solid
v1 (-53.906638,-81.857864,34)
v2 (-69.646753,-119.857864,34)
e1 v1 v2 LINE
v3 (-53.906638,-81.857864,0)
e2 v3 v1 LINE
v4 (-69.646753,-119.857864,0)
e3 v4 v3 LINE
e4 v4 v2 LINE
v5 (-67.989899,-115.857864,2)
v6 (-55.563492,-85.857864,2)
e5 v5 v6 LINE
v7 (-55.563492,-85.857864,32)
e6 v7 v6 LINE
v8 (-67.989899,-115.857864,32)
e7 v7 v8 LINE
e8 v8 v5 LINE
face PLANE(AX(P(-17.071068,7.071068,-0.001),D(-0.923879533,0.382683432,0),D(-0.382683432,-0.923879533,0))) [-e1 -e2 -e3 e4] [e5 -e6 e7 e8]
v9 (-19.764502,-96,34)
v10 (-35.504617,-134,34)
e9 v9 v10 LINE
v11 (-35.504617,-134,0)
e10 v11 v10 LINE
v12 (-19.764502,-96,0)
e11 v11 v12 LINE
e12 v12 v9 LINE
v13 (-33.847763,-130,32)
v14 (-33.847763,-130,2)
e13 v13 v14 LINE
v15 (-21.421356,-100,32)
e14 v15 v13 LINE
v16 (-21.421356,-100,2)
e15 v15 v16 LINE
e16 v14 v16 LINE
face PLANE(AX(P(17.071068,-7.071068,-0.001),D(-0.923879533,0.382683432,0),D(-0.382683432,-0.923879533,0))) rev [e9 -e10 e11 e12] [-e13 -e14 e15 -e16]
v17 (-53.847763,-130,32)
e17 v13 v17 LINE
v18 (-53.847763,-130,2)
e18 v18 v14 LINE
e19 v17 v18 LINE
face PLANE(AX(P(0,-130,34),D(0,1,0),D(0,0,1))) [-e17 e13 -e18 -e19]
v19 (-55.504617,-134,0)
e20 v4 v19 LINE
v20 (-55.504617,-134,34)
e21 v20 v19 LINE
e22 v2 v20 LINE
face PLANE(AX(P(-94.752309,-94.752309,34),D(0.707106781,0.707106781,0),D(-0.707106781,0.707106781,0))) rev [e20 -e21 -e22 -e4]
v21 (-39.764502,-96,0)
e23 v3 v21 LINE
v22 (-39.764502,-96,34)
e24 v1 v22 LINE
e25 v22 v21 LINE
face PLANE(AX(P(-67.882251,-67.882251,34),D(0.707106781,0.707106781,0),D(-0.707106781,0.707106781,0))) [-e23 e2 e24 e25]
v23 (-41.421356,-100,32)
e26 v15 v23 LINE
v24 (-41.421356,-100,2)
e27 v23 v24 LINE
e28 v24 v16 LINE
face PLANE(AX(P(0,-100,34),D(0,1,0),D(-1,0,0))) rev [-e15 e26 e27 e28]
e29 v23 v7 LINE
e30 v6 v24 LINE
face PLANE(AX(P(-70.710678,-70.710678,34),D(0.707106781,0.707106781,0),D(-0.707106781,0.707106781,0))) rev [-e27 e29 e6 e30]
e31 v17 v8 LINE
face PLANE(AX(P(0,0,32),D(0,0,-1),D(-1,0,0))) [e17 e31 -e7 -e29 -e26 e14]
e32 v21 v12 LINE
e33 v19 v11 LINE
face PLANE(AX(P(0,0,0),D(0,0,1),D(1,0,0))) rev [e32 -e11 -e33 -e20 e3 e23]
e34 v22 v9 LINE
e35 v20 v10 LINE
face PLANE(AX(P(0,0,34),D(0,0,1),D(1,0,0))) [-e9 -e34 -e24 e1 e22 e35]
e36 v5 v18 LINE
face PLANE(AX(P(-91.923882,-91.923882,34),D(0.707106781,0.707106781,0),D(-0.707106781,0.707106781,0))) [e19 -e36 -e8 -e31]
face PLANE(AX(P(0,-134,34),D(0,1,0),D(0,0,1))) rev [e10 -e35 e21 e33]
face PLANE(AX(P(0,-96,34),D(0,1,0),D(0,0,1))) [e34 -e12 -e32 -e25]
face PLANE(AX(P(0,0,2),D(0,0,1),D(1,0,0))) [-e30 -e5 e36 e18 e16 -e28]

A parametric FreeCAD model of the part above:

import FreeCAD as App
import Part
import Sketcher
from FreeCAD import Vector
Q = App.Units.Quantity

doc = App.newDocument("Part")
body = doc.addObject("PartDesign::Body", "Body")

# Sketch on XY plane
sketch1 = body.newObject("Sketcher::SketchObject", "Sketch")
sketch1.AttachmentSupport = (doc.getObject("XY_Plane"), [""])
sketch1.MapMode = "FlatFace"
sketch1.addGeometry([
    Part.LineSegment(Vector(55.504617, -134, 0), Vector(134, -55.504617, 0)),  # 0
    Part.LineSegment(Vector(134, -55.504617, 0), Vector(134, 55.504617, 0)),  # 1
    Part.LineSegment(Vector(134, 55.504617, 0), Vector(55.504617, 134, 0)),  # 2
    Part.LineSegment(Vector(55.504617, 134, 0), Vector(-55.504617, 134, 0)),  # 3
    Part.LineSegment(Vector(-55.504617, 134, 0), Vector(-134, 55.504617, 0)),  # 4
    Part.LineSegment(Vector(-134, 55.504617, 0), Vector(-134, -55.504617, 0)),  # 5
    Part.LineSegment(Vector(-134, -55.504617, 0), Vector(-55.504617, -134, 0)),  # 6
    Part.LineSegment(Vector(-55.504617, -134, 0), Vector(55.504617, -134, 0)),  # 7
    Part.LineSegment(Vector(130, 53.847763, 0), Vector(130, -53.847763, 0)),  # 8
    Part.LineSegment(Vector(130, -53.847763, 0), Vector(53.847763, -130, 0)),  # 9
    Part.LineSegment(Vector(53.847763, -130, 0), Vector(-53.847763, -130, 0)),  # 10
    Part.LineSegment(Vector(-53.847763, -130, 0), Vector(-130, -53.847763, 0)),  # 11
    Part.LineSegment(Vector(-130, -53.847763, 0), Vector(-130, 53.847763, 0)),  # 12
    Part.LineSegment(Vector(-130, 53.847763, 0), Vector(-53.847763, 130, 0)),  # 13
    Part.LineSegment(Vector(-53.847763, 130, 0), Vector(53.847763, 130, 0)),  # 14
    Part.LineSegment(Vector(53.847763, 130, 0), Vector(130, 53.847763, 0)),  # 15
], False)
sketch1.addConstraint([
    Sketcher.Constraint("Coincident", 0, 2, 1, 1),
    Sketcher.Constraint("Coincident", 1, 2, 2, 1),
    Sketcher.Constraint("Coincident", 2, 2, 3, 1),
    Sketcher.Constraint("Coincident", 3, 2, 4, 1),
    Sketcher.Constraint("Coincident", 4, 2, 5, 1),
    Sketcher.Constraint("Coincident", 5, 2, 6, 1),
    Sketcher.Constraint("Coincident", 6, 2, 7, 1),
    Sketcher.Constraint("Coincident", 7, 2, 0, 1),
    Sketcher.Constraint("Coincident", 8, 2, 9, 1),
    Sketcher.Constraint("Coincident", 9, 2, 10, 1),
    Sketcher.Constraint("Coincident", 10, 2, 11, 1),
    Sketcher.Constraint("Coincident", 11, 2, 12, 1),
    Sketcher.Constraint("Coincident", 12, 2, 13, 1),
    Sketcher.Constraint("Coincident", 13, 2, 14, 1),
    Sketcher.Constraint("Coincident", 14, 2, 15, 1),
    Sketcher.Constraint("Coincident", 15, 2, 8, 1),
    Sketcher.Constraint("Vertical", 1),
    Sketcher.Constraint("Horizontal", 3),
    Sketcher.Constraint("Vertical", 5),
    Sketcher.Constraint("Horizontal", 7),
    Sketcher.Constraint("Vertical", 8),
    Sketcher.Constraint("Horizontal", 10),
    Sketcher.Constraint("Vertical", 12),
    Sketcher.Constraint("Horizontal", 14),
    Sketcher.Constraint("Symmetric", 0, 2, 4, 2, -1, 1),
    Sketcher.Constraint("Symmetric", 2, 2, 6, 2, -1, 1),
    Sketcher.Constraint("Symmetric", 8, 2, 12, 2, -1, 1),
    Sketcher.Constraint("Symmetric", 9, 2, 13, 2, -1, 1),
    Sketcher.Constraint("Perpendicular", 0, 2),
    Sketcher.Constraint("Perpendicular", 2, 4),
    Sketcher.Constraint("Perpendicular", 4, 6),
    Sketcher.Constraint("Perpendicular", 6, 9),
    Sketcher.Constraint("Perpendicular", 9, 11),
    Sketcher.Constraint("Perpendicular", 13, 15),
    Sketcher.Constraint("Horizontal", 1, 2, 4, 2),
    Sketcher.Constraint("Horizontal", 8, 2, 11, 2),
    Sketcher.Constraint("Horizontal", 12, 2, 15, 2),
    Sketcher.Constraint("Vertical", 3, 2, 6, 2),
    Sketcher.Constraint("Equal", 7, 1),
    Sketcher.Constraint("Equal", 14, 8),
    Sketcher.Constraint("DistanceX", -1, 1, 0, 2, Q("134 mm")),
    Sketcher.Constraint("DistanceX", -1, 1, 8, 2, Q("130 mm")),
    Sketcher.Constraint("DistanceX", 3, 2, 3, 1, Q("111.009235 mm")),
    Sketcher.Constraint("DistanceX", 10, 2, 10, 1, Q("107.695526 mm")),
])
pad1 = body.newObject("PartDesign::Pad", "Pad")
pad1.Profile = sketch1
pad1.Length = 34
body2 = doc.addObject("PartDesign::Body", "Body001")

# Sketch on XY plane
sketch2 = body2.newObject("Sketcher::SketchObject", "Sketch001")
sketch2.AttachmentSupport = (doc.getObject("XY_Plane001"), [""])
sketch2.MapMode = "FlatFace"
sketch2.addGeometry([
    Part.LineSegment(Vector(41.421356, -100, 0), Vector(100, -41.421356, 0)),  # 0
    Part.LineSegment(Vector(100, -41.421356, 0), Vector(100, 41.421356, 0)),  # 1
    Part.LineSegment(Vector(100, 41.421356, 0), Vector(41.421356, 100, 0)),  # 2
    Part.LineSegment(Vector(41.421356, 100, 0), Vector(-41.421356, 100, 0)),  # 3
    Part.LineSegment(Vector(-41.421356, 100, 0), Vector(-100, 41.421356, 0)),  # 4
    Part.LineSegment(Vector(-100, 41.421356, 0), Vector(-100, -41.421356, 0)),  # 5
    Part.LineSegment(Vector(-100, -41.421356, 0), Vector(-41.421356, -100, 0)),  # 6
    Part.LineSegment(Vector(-41.421356, -100, 0), Vector(41.421356, -100, 0)),  # 7
    Part.LineSegment(Vector(96, 39.764502, 0), Vector(96, -39.764502, 0)),  # 8
    Part.LineSegment(Vector(96, -39.764502, 0), Vector(39.764502, -96, 0)),  # 9
    Part.LineSegment(Vector(39.764502, -96, 0), Vector(-39.764502, -96, 0)),  # 10
    Part.LineSegment(Vector(-39.764502, -96, 0), Vector(-96, -39.764502, 0)),  # 11
    Part.LineSegment(Vector(-96, -39.764502, 0), Vector(-96, 39.764502, 0)),  # 12
    Part.LineSegment(Vector(-96, 39.764502, 0), Vector(-39.764502, 96, 0)),  # 13
    Part.LineSegment(Vector(-39.764502, 96, 0), Vector(39.764502, 96, 0)),  # 14
    Part.LineSegment(Vector(39.764502, 96, 0), Vector(96, 39.764502, 0)),  # 15
], False)
sketch2.addConstraint([
    Sketcher.Constraint("Coincident", 0, 2, 1, 1),
    Sketcher.Constraint("Coincident", 1, 2, 2, 1),
    Sketcher.Constraint("Coincident", 2, 2, 3, 1),
    Sketcher.Constraint("Coincident", 3, 2, 4, 1),
    Sketcher.Constraint("Coincident", 4, 2, 5, 1),
    Sketcher.Constraint("Coincident", 5, 2, 6, 1),
    Sketcher.Constraint("Coincident", 6, 2, 7, 1),
    Sketcher.Constraint("Coincident", 7, 2, 0, 1),
    Sketcher.Constraint("Coincident", 8, 2, 9, 1),
    Sketcher.Constraint("Coincident", 9, 2, 10, 1),
    Sketcher.Constraint("Coincident", 10, 2, 11, 1),
    Sketcher.Constraint("Coincident", 11, 2, 12, 1),
    Sketcher.Constraint("Coincident", 12, 2, 13, 1),
    Sketcher.Constraint("Coincident", 13, 2, 14, 1),
    Sketcher.Constraint("Coincident", 14, 2, 15, 1),
    Sketcher.Constraint("Coincident", 15, 2, 8, 1),
    Sketcher.Constraint("Vertical", 1),
    Sketcher.Constraint("Horizontal", 3),
    Sketcher.Constraint("Vertical", 5),
    Sketcher.Constraint("Horizontal", 7),
    Sketcher.Constraint("Vertical", 8),
    Sketcher.Constraint("Horizontal", 10),
    Sketcher.Constraint("Vertical", 12),
    Sketcher.Constraint("Horizontal", 14),
    Sketcher.Constraint("Symmetric", 0, 2, 4, 2, -1, 1),
    Sketcher.Constraint("Symmetric", 2, 2, 6, 2, -1, 1),
    Sketcher.Constraint("Symmetric", 8, 2, 12, 2, -1, 1),
    Sketcher.Constraint("Symmetric", 9, 2, 13, 2, -1, 1),
    Sketcher.Constraint("Perpendicular", 0, 2),
    Sketcher.Constraint("Perpendicular", 2, 4),
    Sketcher.Constraint("Perpendicular", 4, 6),
    Sketcher.Constraint("Perpendicular", 6, 9),
    Sketcher.Constraint("Perpendicular", 9, 11),
    Sketcher.Constraint("Perpendicular", 13, 15),
    Sketcher.Constraint("Horizontal", 1, 2, 4, 2),
    Sketcher.Constraint("Horizontal", 8, 2, 11, 2),
    Sketcher.Constraint("Horizontal", 12, 2, 15, 2),
    Sketcher.Constraint("Vertical", 3, 2, 6, 2),
    Sketcher.Constraint("Equal", 7, 1),
    Sketcher.Constraint("Equal", 14, 8),
    Sketcher.Constraint("DistanceX", -1, 1, 0, 2, Q("100 mm")),
    Sketcher.Constraint("DistanceX", -1, 1, 8, 2, Q("96 mm")),
    Sketcher.Constraint("DistanceY", 8, 2, -1, 1, Q("39.764502 mm")),
    Sketcher.Constraint("DistanceX", 3, 2, 3, 1, Q("82.842712 mm")),
])
pad2 = body2.newObject("PartDesign::Pad", "Pad001")
pad2.Profile = sketch2
pad2.Length = 34
body.AllowCompound = True
doc.recompute()

boolean = body.newObject("PartDesign::Boolean", "Boolean")
boolean.Type = "Fuse"
boolean.addObjects([body2])

# Sketch on XY plane
sketch3 = body.newObject("Sketcher::SketchObject", "Sketch002")
sketch3.AttachmentSupport = (doc.getObject("XY_Plane"), [""])
sketch3.MapMode = "FlatFace"
sketch3.addGeometry([
    Part.LineSegment(Vector(53.847763, -130, 0), Vector(130, -53.847763, 0)),  # 0
    Part.LineSegment(Vector(130, -53.847763, 0), Vector(130, 53.847763, 0)),  # 1
    Part.LineSegment(Vector(130, 53.847763, 0), Vector(53.847763, 130, 0)),  # 2
    Part.LineSegment(Vector(53.847763, 130, 0), Vector(-53.847763, 130, 0)),  # 3
    Part.LineSegment(Vector(-53.847763, 130, 0), Vector(-130, 53.847763, 0)),  # 4
    Part.LineSegment(Vector(-130, 53.847763, 0), Vector(-130, -53.847763, 0)),  # 5
    Part.LineSegment(Vector(-130, -53.847763, 0), Vector(-53.847763, -130, 0)),  # 6
    Part.LineSegment(Vector(-53.847763, -130, 0), Vector(53.847763, -130, 0)),  # 7
    Part.LineSegment(Vector(100, 41.421356, 0), Vector(100, -41.421356, 0)),  # 8
    Part.LineSegment(Vector(100, -41.421356, 0), Vector(41.421356, -100, 0)),  # 9
    Part.LineSegment(Vector(41.421356, -100, 0), Vector(-41.421356, -100, 0)),  # 10
    Part.LineSegment(Vector(-41.421356, -100, 0), Vector(-100, -41.421356, 0)),  # 11
    Part.LineSegment(Vector(-100, -41.421356, 0), Vector(-100, 41.421356, 0)),  # 12
    Part.LineSegment(Vector(-100, 41.421356, 0), Vector(-41.421356, 100, 0)),  # 13
    Part.LineSegment(Vector(-41.421356, 100, 0), Vector(41.421356, 100, 0)),  # 14
    Part.LineSegment(Vector(41.421356, 100, 0), Vector(100, 41.421356, 0)),  # 15
], False)
sketch3.addConstraint([
    Sketcher.Constraint("Coincident", 0, 2, 1, 1),
    Sketcher.Constraint("Coincident", 1, 2, 2, 1),
    Sketcher.Constraint("Coincident", 2, 2, 3, 1),
    Sketcher.Constraint("Coincident", 3, 2, 4, 1),
    Sketcher.Constraint("Coincident", 4, 2, 5, 1),
    Sketcher.Constraint("Coincident", 5, 2, 6, 1),
    Sketcher.Constraint("Coincident", 6, 2, 7, 1),
    Sketcher.Constraint("Coincident", 7, 2, 0, 1),
    Sketcher.Constraint("Coincident", 8, 2, 9, 1),
    Sketcher.Constraint("Coincident", 9, 2, 10, 1),
    Sketcher.Constraint("Coincident", 10, 2, 11, 1),
    Sketcher.Constraint("Coincident", 11, 2, 12, 1),
    Sketcher.Constraint("Coincident", 12, 2, 13, 1),
    Sketcher.Constraint("Coincident", 13, 2, 14, 1),
    Sketcher.Constraint("Coincident", 14, 2, 15, 1),
    Sketcher.Constraint("Coincident", 15, 2, 8, 1),
    Sketcher.Constraint("Vertical", 1),
    Sketcher.Constraint("Horizontal", 3),
    Sketcher.Constraint("Vertical", 5),
    Sketcher.Constraint("Horizontal", 7),
    Sketcher.Constraint("Vertical", 8),
    Sketcher.Constraint("Horizontal", 10),
    Sketcher.Constraint("Vertical", 12),
    Sketcher.Constraint("Horizontal", 14),
    Sketcher.Constraint("Symmetric", 0, 2, 4, 2, -1, 1),
    Sketcher.Constraint("Symmetric", 2, 2, 6, 2, -1, 1),
    Sketcher.Constraint("Symmetric", 8, 2, 12, 2, -1, 1),
    Sketcher.Constraint("Symmetric", 9, 2, 13, 2, -1, 1),
    Sketcher.Constraint("Perpendicular", 0, 2),
    Sketcher.Constraint("Perpendicular", 2, 4),
    Sketcher.Constraint("Perpendicular", 4, 6),
    Sketcher.Constraint("Perpendicular", 6, 9),
    Sketcher.Constraint("Perpendicular", 9, 11),
    Sketcher.Constraint("Perpendicular", 13, 15),
    Sketcher.Constraint("Horizontal", 1, 2, 4, 2),
    Sketcher.Constraint("Horizontal", 8, 2, 11, 2),
    Sketcher.Constraint("Horizontal", 12, 2, 15, 2),
    Sketcher.Constraint("Vertical", 3, 2, 6, 2),
    Sketcher.Constraint("Equal", 7, 1),
    Sketcher.Constraint("Equal", 14, 8),
    Sketcher.Constraint("DistanceX", -1, 1, 0, 2, Q("130 mm")),
    Sketcher.Constraint("DistanceX", -1, 1, 8, 2, Q("100 mm")),
    Sketcher.Constraint("DistanceX", 3, 2, 3, 1, Q("107.695526 mm")),
    Sketcher.Constraint("DistanceX", 10, 2, 10, 1, Q("82.842712 mm")),
])
pad3 = body.newObject("PartDesign::Pad", "Pad002")
pad3.Profile = sketch3
pad3.Length = 2

# Sketch on XY plane
sketch4 = body.newObject("Sketcher::SketchObject", "Sketch003")
sketch4.AttachmentSupport = (doc.getObject("XY_Plane"), [""])
sketch4.MapMode = "FlatFace"
sketch4.AttachmentOffset = App.Placement(Vector(0, 0, 34), App.Rotation())
sketch4.addGeometry([
    Part.LineSegment(Vector(53.847763, -130, 0), Vector(130, -53.847763, 0)),  # 0
    Part.LineSegment(Vector(130, -53.847763, 0), Vector(130, 53.847763, 0)),  # 1
    Part.LineSegment(Vector(130, 53.847763, 0), Vector(53.847763, 130, 0)),  # 2
    Part.LineSegment(Vector(53.847763, 130, 0), Vector(-53.847763, 130, 0)),  # 3
    Part.LineSegment(Vector(-53.847763, 130, 0), Vector(-130, 53.847763, 0)),  # 4
    Part.LineSegment(Vector(-130, 53.847763, 0), Vector(-130, -53.847763, 0)),  # 5
    Part.LineSegment(Vector(-130, -53.847763, 0), Vector(-53.847763, -130, 0)),  # 6
    Part.LineSegment(Vector(-53.847763, -130, 0), Vector(53.847763, -130, 0)),  # 7
    Part.LineSegment(Vector(100, 41.421356, 0), Vector(100, -41.421356, 0)),  # 8
    Part.LineSegment(Vector(100, -41.421356, 0), Vector(41.421356, -100, 0)),  # 9
    Part.LineSegment(Vector(41.421356, -100, 0), Vector(-41.421356, -100, 0)),  # 10
    Part.LineSegment(Vector(-41.421356, -100, 0), Vector(-100, -41.421356, 0)),  # 11
    Part.LineSegment(Vector(-100, -41.421356, 0), Vector(-100, 41.421356, 0)),  # 12
    Part.LineSegment(Vector(-100, 41.421356, 0), Vector(-41.421356, 100, 0)),  # 13
    Part.LineSegment(Vector(-41.421356, 100, 0), Vector(41.421356, 100, 0)),  # 14
    Part.LineSegment(Vector(41.421356, 100, 0), Vector(100, 41.421356, 0)),  # 15
], False)
sketch4.addConstraint([
    Sketcher.Constraint("Coincident", 0, 2, 1, 1),
    Sketcher.Constraint("Coincident", 1, 2, 2, 1),
    Sketcher.Constraint("Coincident", 2, 2, 3, 1),
    Sketcher.Constraint("Coincident", 3, 2, 4, 1),
    Sketcher.Constraint("Coincident", 4, 2, 5, 1),
    Sketcher.Constraint("Coincident", 5, 2, 6, 1),
    Sketcher.Constraint("Coincident", 6, 2, 7, 1),
    Sketcher.Constraint("Coincident", 7, 2, 0, 1),
    Sketcher.Constraint("Coincident", 8, 2, 9, 1),
    Sketcher.Constraint("Coincident", 9, 2, 10, 1),
    Sketcher.Constraint("Coincident", 10, 2, 11, 1),
    Sketcher.Constraint("Coincident", 11, 2, 12, 1),
    Sketcher.Constraint("Coincident", 12, 2, 13, 1),
    Sketcher.Constraint("Coincident", 13, 2, 14, 1),
    Sketcher.Constraint("Coincident", 14, 2, 15, 1),
    Sketcher.Constraint("Coincident", 15, 2, 8, 1),
    Sketcher.Constraint("Vertical", 1),
    Sketcher.Constraint("Horizontal", 3),
    Sketcher.Constraint("Vertical", 5),
    Sketcher.Constraint("Horizontal", 7),
    Sketcher.Constraint("Vertical", 8),
    Sketcher.Constraint("Horizontal", 10),
    Sketcher.Constraint("Vertical", 12),
    Sketcher.Constraint("Horizontal", 14),
    Sketcher.Constraint("Symmetric", 0, 2, 4, 2, -1, 1),
    Sketcher.Constraint("Symmetric", 2, 2, 6, 2, -1, 1),
    Sketcher.Constraint("Symmetric", 8, 2, 12, 2, -1, 1),
    Sketcher.Constraint("Symmetric", 9, 2, 13, 2, -1, 1),
    Sketcher.Constraint("Perpendicular", 0, 2),
    Sketcher.Constraint("Perpendicular", 2, 4),
    Sketcher.Constraint("Perpendicular", 4, 6),
    Sketcher.Constraint("Perpendicular", 6, 9),
    Sketcher.Constraint("Perpendicular", 9, 11),
    Sketcher.Constraint("Perpendicular", 13, 15),
    Sketcher.Constraint("Horizontal", 1, 2, 4, 2),
    Sketcher.Constraint("Horizontal", 8, 2, 11, 2),
    Sketcher.Constraint("Horizontal", 12, 2, 15, 2),
    Sketcher.Constraint("Vertical", 3, 2, 6, 2),
    Sketcher.Constraint("Equal", 7, 1),
    Sketcher.Constraint("Equal", 14, 8),
    Sketcher.Constraint("DistanceX", -1, 1, 0, 2, Q("130 mm")),
    Sketcher.Constraint("DistanceX", -1, 1, 8, 2, Q("100 mm")),
    Sketcher.Constraint("DistanceX", 3, 2, 3, 1, Q("107.695526 mm")),
    Sketcher.Constraint("DistanceX", 10, 2, 10, 1, Q("82.842712 mm")),
])
pad4 = body.newObject("PartDesign::Pad", "Pad003")
pad4.Profile = sketch4
pad4.Length = 2
pad4.Reversed = True

# Sketch on XY plane
sketch5 = body.newObject("Sketcher::SketchObject", "Sketch004")
sketch5.AttachmentSupport = (doc.getObject("XY_Plane"), [""])
sketch5.MapMode = "FlatFace"
sketch5.AttachmentOffset = App.Placement(Vector(0, 0, 34), App.Rotation())
sketch5.addGeometry([
    Part.LineSegment(Vector(-134, -55.504617, 0), Vector(-69.646753, -119.857864, 0)),  # 0
    Part.LineSegment(Vector(-69.646753, -119.857864, 0), Vector(-53.906638, -81.857864, 0)),  # 1
    Part.LineSegment(Vector(-53.906638, -81.857864, 0), Vector(-96, -39.764502, 0)),  # 2
    Part.LineSegment(Vector(-96, -39.764502, 0), Vector(-96, 39.764502, 0)),  # 3
    Part.LineSegment(Vector(-96, 39.764502, 0), Vector(-39.764502, 96, 0)),  # 4
    Part.LineSegment(Vector(-39.764502, 96, 0), Vector(39.764502, 96, 0)),  # 5
    Part.LineSegment(Vector(39.764502, 96, 0), Vector(96, 39.764502, 0)),  # 6
    Part.LineSegment(Vector(96, 39.764502, 0), Vector(96, -39.764502, 0)),  # 7
    Part.LineSegment(Vector(96, -39.764502, 0), Vector(39.764502, -96, 0)),  # 8
    Part.LineSegment(Vector(39.764502, -96, 0), Vector(-19.764502, -96, 0)),  # 9
    Part.LineSegment(Vector(-19.764502, -96, 0), Vector(-35.504617, -134, 0)),  # 10
    Part.LineSegment(Vector(-35.504617, -134, 0), Vector(55.504617, -134, 0)),  # 11
    Part.LineSegment(Vector(55.504617, -134, 0), Vector(134, -55.504617, 0)),  # 12
    Part.LineSegment(Vector(134, -55.504617, 0), Vector(134, 55.504617, 0)),  # 13
    Part.LineSegment(Vector(134, 55.504617, 0), Vector(55.504617, 134, 0)),  # 14
    Part.LineSegment(Vector(55.504617, 134, 0), Vector(-55.504617, 134, 0)),  # 15
    Part.LineSegment(Vector(-55.504617, 134, 0), Vector(-134, 55.504617, 0)),  # 16
    Part.LineSegment(Vector(-134, 55.504617, 0), Vector(-134, -55.504617, 0)),  # 17
], False)
sketch5.addConstraint([
    Sketcher.Constraint("Coincident", 0, 2, 1, 1),
    Sketcher.Constraint("Coincident", 1, 2, 2, 1),
    Sketcher.Constraint("Coincident", 2, 2, 3, 1),
    Sketcher.Constraint("Coincident", 3, 2, 4, 1),
    Sketcher.Constraint("Coincident", 4, 2, 5, 1),
    Sketcher.Constraint("Coincident", 5, 2, 6, 1),
    Sketcher.Constraint("Coincident", 6, 2, 7, 1),
    Sketcher.Constraint("Coincident", 7, 2, 8, 1),
    Sketcher.Constraint("Coincident", 8, 2, 9, 1),
    Sketcher.Constraint("Coincident", 9, 2, 10, 1),
    Sketcher.Constraint("Coincident", 10, 2, 11, 1),
    Sketcher.Constraint("Coincident", 11, 2, 12, 1),
    Sketcher.Constraint("Coincident", 12, 2, 13, 1),
    Sketcher.Constraint("Coincident", 13, 2, 14, 1),
    Sketcher.Constraint("Coincident", 14, 2, 15, 1),
    Sketcher.Constraint("Coincident", 15, 2, 16, 1),
    Sketcher.Constraint("Coincident", 16, 2, 17, 1),
    Sketcher.Constraint("Coincident", 17, 2, 0, 1),
    Sketcher.Constraint("Vertical", 3),
    Sketcher.Constraint("Horizontal", 5),
    Sketcher.Constraint("Vertical", 7),
    Sketcher.Constraint("Horizontal", 9),
    Sketcher.Constraint("Horizontal", 11),
    Sketcher.Constraint("Vertical", 13),
    Sketcher.Constraint("Horizontal", 15),
    Sketcher.Constraint("Vertical", 17),
    Sketcher.Constraint("Symmetric", 2, 2, 6, 2, -1, 1),
    Sketcher.Constraint("Symmetric", 4, 2, 8, 2, -1, 1),
    Sketcher.Constraint("Symmetric", 11, 2, 15, 2, -1, 1),
    Sketcher.Constraint("Symmetric", 12, 2, 16, 2, -1, 1),
    Sketcher.Constraint("Parallel", 0, 2),
    Sketcher.Constraint("Perpendicular", 2, 4),
    Sketcher.Constraint("Perpendicular", 4, 6),
    Sketcher.Constraint("Perpendicular", 6, 8),
    Sketcher.Constraint("Parallel", 1, 10),
    Sketcher.Constraint("Parallel", 8, 12),
    Sketcher.Constraint("Perpendicular", 12, 14),
    Sketcher.Constraint("Horizontal", 3, 2, 6, 2),
    Sketcher.Constraint("Horizontal", 13, 2, 16, 2),
    Sketcher.Constraint("Horizontal", 12, 2, 17, 2),
    Sketcher.Constraint("Vertical", 5, 2, 8, 2),
    Sketcher.Constraint("Equal", 5, 3),
    Sketcher.Constraint("Equal", 15, 13),
    Sketcher.Constraint("Equal", 1, 10),
    Sketcher.Constraint("DistanceX", 2, 2, -1, 1, Q("96 mm")),
    Sketcher.Constraint("DistanceY", 10, 2, -1, 1, Q("134 mm")),
    Sketcher.Constraint("Angle", 1, Q("67.5 deg")),
    Sketcher.Constraint("DistanceY", 2, 2, -1, 1, Q("39.764502 mm")),
    Sketcher.Constraint("DistanceX", 9, 2, -1, 1, Q("19.764502 mm")),
    Sketcher.Constraint("DistanceX", 0, 2, 4, 2, Q("29.882251 mm")),
])
pocket1 = body.newObject("PartDesign::Pocket", "Pocket")
pocket1.Profile = sketch5
pocket1.Length = 34

doc.recompute()
